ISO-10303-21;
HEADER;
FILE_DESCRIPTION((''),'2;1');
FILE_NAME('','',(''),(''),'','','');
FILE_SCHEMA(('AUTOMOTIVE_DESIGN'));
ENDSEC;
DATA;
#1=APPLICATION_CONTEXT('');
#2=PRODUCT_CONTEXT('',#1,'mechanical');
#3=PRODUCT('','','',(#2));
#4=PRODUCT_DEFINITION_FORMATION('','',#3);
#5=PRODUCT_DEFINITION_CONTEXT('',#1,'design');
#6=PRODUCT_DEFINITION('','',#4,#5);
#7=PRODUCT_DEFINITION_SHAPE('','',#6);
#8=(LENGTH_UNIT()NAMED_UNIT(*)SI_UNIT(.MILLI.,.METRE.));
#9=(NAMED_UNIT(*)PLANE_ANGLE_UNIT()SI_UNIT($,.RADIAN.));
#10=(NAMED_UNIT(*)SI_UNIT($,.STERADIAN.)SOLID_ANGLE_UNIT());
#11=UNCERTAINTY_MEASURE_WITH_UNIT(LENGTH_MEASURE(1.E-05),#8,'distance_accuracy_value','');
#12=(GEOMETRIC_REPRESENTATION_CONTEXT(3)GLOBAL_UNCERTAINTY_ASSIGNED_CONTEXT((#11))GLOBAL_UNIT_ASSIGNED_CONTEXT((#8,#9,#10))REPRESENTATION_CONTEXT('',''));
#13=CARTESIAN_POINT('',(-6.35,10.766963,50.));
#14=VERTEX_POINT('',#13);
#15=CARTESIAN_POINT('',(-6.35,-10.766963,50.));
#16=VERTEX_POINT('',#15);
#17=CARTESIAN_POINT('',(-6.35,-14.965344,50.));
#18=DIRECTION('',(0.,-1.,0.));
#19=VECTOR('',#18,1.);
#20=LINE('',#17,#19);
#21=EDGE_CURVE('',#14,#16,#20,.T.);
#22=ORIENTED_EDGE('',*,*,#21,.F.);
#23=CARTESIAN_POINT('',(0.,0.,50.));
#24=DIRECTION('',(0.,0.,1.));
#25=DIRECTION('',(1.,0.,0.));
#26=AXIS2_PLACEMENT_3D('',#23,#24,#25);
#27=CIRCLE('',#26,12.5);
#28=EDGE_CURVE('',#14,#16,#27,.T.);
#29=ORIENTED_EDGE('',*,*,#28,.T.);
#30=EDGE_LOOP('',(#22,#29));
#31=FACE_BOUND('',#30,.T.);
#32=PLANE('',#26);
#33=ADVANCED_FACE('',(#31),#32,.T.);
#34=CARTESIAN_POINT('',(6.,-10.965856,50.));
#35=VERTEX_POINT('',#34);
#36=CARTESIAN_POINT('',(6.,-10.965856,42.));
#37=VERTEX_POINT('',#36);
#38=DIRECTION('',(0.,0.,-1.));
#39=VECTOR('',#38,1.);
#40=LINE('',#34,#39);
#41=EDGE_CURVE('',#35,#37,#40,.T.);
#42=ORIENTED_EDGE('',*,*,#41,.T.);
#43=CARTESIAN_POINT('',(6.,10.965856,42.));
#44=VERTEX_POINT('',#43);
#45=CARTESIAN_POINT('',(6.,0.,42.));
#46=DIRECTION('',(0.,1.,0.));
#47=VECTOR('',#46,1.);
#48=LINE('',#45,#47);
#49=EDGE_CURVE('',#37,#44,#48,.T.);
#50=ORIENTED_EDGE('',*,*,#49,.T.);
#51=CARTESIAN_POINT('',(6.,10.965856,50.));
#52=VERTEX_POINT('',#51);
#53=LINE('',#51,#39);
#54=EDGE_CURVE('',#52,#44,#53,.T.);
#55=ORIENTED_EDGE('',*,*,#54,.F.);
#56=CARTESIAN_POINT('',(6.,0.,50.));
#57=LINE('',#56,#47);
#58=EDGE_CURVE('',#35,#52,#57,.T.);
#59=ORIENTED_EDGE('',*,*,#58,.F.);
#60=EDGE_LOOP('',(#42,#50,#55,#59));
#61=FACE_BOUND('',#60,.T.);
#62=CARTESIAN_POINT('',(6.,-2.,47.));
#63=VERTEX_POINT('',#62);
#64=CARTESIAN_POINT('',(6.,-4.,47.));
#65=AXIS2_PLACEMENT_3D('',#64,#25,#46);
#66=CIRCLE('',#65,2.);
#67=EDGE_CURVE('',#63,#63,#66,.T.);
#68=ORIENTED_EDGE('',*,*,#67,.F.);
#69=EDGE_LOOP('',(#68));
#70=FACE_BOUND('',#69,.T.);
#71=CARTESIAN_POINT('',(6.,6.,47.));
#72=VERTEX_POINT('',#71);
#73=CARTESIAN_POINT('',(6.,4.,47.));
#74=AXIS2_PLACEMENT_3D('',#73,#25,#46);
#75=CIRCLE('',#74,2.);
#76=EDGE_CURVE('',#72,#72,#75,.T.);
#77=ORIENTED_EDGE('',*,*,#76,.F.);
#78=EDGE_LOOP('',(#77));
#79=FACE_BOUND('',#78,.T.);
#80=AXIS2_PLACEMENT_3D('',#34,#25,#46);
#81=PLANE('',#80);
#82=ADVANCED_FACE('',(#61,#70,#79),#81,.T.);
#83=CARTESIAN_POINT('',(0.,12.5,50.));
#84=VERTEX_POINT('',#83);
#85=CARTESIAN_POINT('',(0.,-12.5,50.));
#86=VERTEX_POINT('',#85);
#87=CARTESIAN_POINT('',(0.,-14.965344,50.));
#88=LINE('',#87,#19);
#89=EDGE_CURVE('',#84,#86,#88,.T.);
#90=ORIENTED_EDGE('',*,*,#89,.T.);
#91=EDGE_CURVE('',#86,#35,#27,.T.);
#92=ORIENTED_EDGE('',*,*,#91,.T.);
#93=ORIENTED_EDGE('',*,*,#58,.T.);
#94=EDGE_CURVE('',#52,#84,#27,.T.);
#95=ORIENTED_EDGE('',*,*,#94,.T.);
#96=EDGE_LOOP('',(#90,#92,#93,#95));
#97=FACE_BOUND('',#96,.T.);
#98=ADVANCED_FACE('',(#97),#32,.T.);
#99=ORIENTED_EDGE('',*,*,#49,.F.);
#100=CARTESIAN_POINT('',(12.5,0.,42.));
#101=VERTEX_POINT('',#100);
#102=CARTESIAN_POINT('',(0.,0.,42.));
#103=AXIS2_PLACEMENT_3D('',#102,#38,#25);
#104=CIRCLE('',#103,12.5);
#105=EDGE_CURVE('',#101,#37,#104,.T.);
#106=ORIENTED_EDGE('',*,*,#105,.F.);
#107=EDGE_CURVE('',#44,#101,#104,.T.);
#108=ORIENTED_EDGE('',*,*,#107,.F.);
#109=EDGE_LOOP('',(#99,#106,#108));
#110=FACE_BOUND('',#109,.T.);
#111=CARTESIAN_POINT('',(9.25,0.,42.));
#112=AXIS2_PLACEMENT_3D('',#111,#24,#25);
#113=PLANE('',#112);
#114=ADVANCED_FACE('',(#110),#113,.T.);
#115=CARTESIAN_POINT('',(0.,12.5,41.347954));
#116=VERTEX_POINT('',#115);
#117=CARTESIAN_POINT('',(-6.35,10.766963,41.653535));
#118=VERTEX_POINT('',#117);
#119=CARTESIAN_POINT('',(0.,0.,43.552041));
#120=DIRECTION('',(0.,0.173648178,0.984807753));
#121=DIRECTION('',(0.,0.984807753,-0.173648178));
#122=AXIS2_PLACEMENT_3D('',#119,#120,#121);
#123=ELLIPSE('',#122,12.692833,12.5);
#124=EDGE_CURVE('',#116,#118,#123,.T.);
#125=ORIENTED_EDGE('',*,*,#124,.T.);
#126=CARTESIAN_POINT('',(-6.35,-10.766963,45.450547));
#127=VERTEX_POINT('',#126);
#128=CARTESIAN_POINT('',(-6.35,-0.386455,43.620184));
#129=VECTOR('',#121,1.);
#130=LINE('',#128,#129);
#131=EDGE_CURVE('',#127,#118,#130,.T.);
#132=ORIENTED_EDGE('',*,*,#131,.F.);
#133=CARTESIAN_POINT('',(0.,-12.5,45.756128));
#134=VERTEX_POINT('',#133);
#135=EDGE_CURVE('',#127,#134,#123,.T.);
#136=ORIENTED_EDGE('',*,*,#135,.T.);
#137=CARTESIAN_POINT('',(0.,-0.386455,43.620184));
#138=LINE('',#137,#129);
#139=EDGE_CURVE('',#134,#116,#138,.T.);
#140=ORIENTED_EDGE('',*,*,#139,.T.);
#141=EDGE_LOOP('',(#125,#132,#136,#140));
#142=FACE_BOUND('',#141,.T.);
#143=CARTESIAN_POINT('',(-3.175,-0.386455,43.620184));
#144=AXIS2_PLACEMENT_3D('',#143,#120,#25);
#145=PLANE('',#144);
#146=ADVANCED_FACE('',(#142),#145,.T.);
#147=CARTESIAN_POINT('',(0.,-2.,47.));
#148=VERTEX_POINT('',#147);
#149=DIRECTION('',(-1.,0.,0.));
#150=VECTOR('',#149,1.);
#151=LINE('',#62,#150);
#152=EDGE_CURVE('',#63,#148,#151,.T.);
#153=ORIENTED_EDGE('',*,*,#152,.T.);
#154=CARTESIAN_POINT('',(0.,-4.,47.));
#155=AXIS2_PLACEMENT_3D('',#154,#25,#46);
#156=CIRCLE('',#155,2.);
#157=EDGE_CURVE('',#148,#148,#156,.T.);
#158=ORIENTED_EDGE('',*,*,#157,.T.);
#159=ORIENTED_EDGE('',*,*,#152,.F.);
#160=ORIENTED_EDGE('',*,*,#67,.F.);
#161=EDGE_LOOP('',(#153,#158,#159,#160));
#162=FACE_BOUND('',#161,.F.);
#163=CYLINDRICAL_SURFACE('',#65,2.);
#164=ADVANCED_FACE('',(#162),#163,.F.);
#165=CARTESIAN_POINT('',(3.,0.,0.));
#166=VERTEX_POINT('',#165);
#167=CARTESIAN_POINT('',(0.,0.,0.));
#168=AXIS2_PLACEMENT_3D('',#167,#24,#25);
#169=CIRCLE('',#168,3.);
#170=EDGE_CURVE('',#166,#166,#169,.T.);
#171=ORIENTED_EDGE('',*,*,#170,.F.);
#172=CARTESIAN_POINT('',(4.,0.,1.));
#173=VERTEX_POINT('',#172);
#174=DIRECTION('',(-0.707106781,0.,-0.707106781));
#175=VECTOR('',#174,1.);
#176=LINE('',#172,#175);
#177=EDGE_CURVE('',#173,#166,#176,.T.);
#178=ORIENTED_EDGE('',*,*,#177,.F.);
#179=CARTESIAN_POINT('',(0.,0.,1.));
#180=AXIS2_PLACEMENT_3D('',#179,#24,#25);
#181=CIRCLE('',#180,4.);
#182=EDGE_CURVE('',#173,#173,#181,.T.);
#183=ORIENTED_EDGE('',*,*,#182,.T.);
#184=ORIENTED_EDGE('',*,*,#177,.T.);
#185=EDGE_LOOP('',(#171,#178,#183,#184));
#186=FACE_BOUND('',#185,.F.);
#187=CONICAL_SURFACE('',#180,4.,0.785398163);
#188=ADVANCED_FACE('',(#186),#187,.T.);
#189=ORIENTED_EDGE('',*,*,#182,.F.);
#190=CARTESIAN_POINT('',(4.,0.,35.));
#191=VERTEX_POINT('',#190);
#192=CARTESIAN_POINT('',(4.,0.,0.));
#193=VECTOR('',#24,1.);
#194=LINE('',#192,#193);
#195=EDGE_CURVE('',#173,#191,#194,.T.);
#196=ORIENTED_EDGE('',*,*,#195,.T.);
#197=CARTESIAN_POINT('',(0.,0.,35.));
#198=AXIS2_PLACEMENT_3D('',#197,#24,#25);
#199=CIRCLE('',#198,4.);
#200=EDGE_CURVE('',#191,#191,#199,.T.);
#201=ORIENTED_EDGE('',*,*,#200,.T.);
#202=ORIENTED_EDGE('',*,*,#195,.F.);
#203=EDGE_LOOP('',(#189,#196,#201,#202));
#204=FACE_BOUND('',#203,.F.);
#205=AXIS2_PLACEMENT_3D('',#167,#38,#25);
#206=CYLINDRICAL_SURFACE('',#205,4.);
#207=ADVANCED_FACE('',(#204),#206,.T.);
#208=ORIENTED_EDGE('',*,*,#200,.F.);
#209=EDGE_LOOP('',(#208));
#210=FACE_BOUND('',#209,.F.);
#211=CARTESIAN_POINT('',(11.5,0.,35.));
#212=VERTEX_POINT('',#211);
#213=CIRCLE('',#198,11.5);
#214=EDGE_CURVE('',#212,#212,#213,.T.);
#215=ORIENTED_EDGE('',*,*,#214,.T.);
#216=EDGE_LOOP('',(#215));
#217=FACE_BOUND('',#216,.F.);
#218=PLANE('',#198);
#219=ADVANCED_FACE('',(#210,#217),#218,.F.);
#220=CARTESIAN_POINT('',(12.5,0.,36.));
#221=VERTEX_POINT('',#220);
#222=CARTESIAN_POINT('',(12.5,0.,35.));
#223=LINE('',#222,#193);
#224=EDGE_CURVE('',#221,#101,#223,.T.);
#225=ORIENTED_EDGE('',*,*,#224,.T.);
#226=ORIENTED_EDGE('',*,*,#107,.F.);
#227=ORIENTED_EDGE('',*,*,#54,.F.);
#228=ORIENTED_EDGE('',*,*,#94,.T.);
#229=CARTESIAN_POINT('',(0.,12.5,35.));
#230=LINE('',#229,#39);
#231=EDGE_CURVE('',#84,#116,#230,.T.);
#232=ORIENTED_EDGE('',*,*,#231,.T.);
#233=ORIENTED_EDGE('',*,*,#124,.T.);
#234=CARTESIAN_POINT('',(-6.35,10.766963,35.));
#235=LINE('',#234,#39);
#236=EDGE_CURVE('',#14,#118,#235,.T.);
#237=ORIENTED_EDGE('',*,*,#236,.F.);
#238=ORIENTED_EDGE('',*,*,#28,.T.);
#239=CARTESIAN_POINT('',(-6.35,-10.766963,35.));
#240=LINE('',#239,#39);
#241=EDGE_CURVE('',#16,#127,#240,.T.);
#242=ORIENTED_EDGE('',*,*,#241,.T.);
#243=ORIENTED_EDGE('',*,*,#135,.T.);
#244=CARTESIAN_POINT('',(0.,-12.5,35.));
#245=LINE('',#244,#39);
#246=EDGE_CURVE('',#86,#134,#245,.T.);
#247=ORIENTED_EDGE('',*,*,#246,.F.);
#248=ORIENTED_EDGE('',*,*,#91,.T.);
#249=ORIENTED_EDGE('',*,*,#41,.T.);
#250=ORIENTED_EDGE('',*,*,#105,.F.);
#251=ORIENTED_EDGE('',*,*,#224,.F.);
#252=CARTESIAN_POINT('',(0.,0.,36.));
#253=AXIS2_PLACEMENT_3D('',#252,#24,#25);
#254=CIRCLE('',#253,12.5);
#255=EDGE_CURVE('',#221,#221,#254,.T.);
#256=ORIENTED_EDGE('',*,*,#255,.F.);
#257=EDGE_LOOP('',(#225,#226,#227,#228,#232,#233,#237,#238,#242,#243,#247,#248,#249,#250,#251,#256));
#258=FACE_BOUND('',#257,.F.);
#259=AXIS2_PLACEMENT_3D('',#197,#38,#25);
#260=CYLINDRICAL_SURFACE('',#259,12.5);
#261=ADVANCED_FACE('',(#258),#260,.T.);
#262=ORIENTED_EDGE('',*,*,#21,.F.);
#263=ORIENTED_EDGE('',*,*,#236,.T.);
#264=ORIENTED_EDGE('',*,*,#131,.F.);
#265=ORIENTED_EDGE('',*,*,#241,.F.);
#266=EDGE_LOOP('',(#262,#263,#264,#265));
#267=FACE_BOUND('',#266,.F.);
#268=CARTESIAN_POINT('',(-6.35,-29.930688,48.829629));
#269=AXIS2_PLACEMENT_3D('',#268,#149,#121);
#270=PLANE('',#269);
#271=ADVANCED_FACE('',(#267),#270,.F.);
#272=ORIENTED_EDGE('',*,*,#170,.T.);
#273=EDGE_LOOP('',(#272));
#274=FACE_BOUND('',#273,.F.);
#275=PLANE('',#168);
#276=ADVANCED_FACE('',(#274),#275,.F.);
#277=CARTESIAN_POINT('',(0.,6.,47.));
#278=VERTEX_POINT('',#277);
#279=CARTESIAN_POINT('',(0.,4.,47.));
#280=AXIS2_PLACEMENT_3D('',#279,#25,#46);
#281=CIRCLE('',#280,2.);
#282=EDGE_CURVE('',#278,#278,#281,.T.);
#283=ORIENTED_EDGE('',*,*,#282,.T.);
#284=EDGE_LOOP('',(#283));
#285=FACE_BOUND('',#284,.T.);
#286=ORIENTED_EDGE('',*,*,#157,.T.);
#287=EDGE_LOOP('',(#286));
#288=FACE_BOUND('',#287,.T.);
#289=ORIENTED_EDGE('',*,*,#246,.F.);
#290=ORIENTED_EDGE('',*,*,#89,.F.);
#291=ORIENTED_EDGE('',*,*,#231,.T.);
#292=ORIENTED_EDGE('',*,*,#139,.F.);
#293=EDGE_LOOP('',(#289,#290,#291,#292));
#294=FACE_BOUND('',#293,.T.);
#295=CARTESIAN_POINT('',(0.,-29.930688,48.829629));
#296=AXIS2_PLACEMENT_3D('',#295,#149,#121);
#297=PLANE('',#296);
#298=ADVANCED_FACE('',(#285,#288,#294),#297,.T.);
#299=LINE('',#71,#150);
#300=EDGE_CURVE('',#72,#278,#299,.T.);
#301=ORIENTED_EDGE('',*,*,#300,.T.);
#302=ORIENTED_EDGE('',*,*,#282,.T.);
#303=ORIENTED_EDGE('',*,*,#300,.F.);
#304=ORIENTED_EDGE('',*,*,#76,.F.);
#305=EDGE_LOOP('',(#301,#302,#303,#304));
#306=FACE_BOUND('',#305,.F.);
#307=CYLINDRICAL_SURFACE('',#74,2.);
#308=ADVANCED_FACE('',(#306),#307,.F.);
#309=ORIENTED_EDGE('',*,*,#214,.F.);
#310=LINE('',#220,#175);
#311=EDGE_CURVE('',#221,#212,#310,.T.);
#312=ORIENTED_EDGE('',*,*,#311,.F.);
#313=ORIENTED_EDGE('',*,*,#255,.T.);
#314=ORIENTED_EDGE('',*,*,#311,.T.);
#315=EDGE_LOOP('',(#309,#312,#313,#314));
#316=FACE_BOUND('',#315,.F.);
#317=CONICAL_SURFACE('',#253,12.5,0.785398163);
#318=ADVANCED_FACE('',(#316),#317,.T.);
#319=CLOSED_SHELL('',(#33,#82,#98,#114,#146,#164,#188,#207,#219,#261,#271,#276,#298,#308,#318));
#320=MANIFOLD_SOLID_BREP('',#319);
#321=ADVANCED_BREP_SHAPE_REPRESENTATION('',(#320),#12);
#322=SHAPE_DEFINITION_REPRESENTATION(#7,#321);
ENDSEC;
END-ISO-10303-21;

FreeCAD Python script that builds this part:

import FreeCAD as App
import Part
import Sketcher

V = App.Vector


def edges_at(feature, points):
    """Names of the edges that pass closest to the given points."""
    edges = feature.Shape.Edges
    near = lambda p: min(range(len(edges)), key=lambda i: edges[i].distToShape(Part.Vertex(*p))[0])
    return sorted({f"Edge{near(p) + 1}" for p in points})


def add_polygon(sketch, points):
    """Adds a closed chain of lines whose ends are joined by coincident constraints."""
    first, n = sketch.GeometryCount, len(points)
    for a, b in zip(points, points[1:] + points[:1]):
        sketch.addGeometry(Part.LineSegment(App.Vector(*a, 0), App.Vector(*b, 0)), False)
    for i in range(n):
        sketch.addConstraint(Sketcher.Constraint("Coincident", first + i, 2, first + (i + 1) % n, 1))

doc = App.newDocument("Part")
body = doc.addObject("PartDesign::Body", "Body")

# Sketch on XY plane
sketch1 = body.newObject("Sketcher::SketchObject", "Sketch")
sketch1.AttachmentSupport = (doc.getObject("XY_Plane"), [""])
sketch1.MapMode = "FlatFace"
sketch1.addGeometry(Part.Circle(V(0, 0, 0), V(0, 0, 1), 4), False)
sketch1.addConstraint([
    Sketcher.Constraint("Coincident", 0, 3, -1, 1),
    Sketcher.Constraint("Diameter", 0, 8.0),
])
pad1 = body.newObject("PartDesign::Pad", "Pad")
pad1.Profile = sketch1
pad1.Length = 35

# Sketch on XY plane
sketch2 = body.newObject("Sketcher::SketchObject", "Sketch001")
sketch2.AttachmentSupport = (doc.getObject("XY_Plane"), [""])
sketch2.MapMode = "FlatFace"
sketch2.AttachmentOffset = App.Placement(V(0, 0, 35), App.Rotation())
sketch2.addGeometry(Part.Circle(V(0, 0, 0), V(0, 0, 1), 12), False)
sketch2.addConstraint([
    Sketcher.Constraint("Coincident", 0, 3, -1, 1),
    Sketcher.Constraint("Diameter", 0, 25.0),
])
pad2 = body.newObject("PartDesign::Pad", "Pad001")
pad2.Profile = sketch2
pad2.Length = 15

# Sketch on XY plane
sketch3 = body.newObject("Sketcher::SketchObject", "Sketch002")
sketch3.AttachmentSupport = (doc.getObject("XY_Plane"), [""])
sketch3.MapMode = "FlatFace"
sketch3.AttachmentOffset = App.Placement(V(0, 0, 50), App.Rotation())
add_polygon(sketch3, [(6, 11), (6, -11), (12, -11), (12, 11)])  # lines 0-3
sketch3.addConstraint([
    Sketcher.Constraint("Vertical", 0),
    Sketcher.Constraint("Horizontal", 1),
    Sketcher.Constraint("Vertical", 2),
    Sketcher.Constraint("Horizontal", 3),
    Sketcher.Constraint("DistanceX", 1, 1, 1, 2, 6.5),
    Sketcher.Constraint("DistanceX", -1, 1, 0, 2, 6.0),
    Sketcher.Constraint("DistanceY", 0, 2, 0, 1, 21.931712),
    Sketcher.Constraint("DistanceY", 0, 2, -1, 1, 10.965856),
])
pocket1 = body.newObject("PartDesign::Pocket", "Pocket")
pocket1.Profile = sketch3
pocket1.Length = 8

# Sketch on an angled plane
sketch4 = body.newObject("Sketcher::SketchObject", "Sketch003")
sketch4.Placement = App.Placement(V(0, 7.447838, 42.238786), App.Rotation(V(1, 0, 0), V(0, 0.984807753, -0.173648178), V(0, 0.173648178, 0.984807753), "ZXY"))
add_polygon(sketch4, [(-6, 22), (-6, -38), (0, -38), (0, 22)])  # lines 0-3
sketch4.addConstraint([
    Sketcher.Constraint("Vertical", 0),
    Sketcher.Constraint("Horizontal", 1),
    Sketcher.Constraint("Vertical", 2),
    Sketcher.Constraint("Horizontal", 3),
    Sketcher.Constraint("PointOnObject", 1, 2, -2),
    Sketcher.Constraint("DistanceY", 0, 2, 0, 1, 60.0),
    Sketcher.Constraint("DistanceX", 1, 1, 1, 2, 6.35),
    Sketcher.Constraint("DistanceY", 0, 2, -1, 1, 37.95515),
])
pocket2 = body.newObject("PartDesign::Pocket", "Pocket001")
pocket2.Profile = sketch4
pocket2.Length = 25
pocket2.Reversed = True

# Sketch on YZ plane
sketch5 = body.newObject("Sketcher::SketchObject", "Sketch004")
sketch5.AttachmentSupport = (doc.getObject("YZ_Plane"), [""])
sketch5.MapMode = "FlatFace"
sketch5.AttachmentOffset = App.Placement(V(0, 0, 6), App.Rotation())
sketch5.addGeometry([
    Part.Circle(V(4, 47, 0), V(0, 0, 1), 2),
    Part.Circle(V(-4, 47, 0), V(0, 0, 1), 2),
], False)
sketch5.addConstraint([
    Sketcher.Constraint("Equal", 0, 1),
    Sketcher.Constraint("Symmetric", 0, 3, 1, 3, -2),
    Sketcher.Constraint("Diameter", 0, 4.0),
    Sketcher.Constraint("DistanceX", -1, 1, 0, 3, 4.0),
    Sketcher.Constraint("DistanceY", -1, 1, 0, 3, 47.0),
])
pocket3 = body.newObject("PartDesign::Pocket", "Pocket002")
pocket3.Profile = sketch5
pocket3.Length = 8
doc.recompute()

chamfer = body.newObject("PartDesign::Chamfer", "Chamfer")
chamfer.Base = (pocket3, edges_at(pocket3, [(-12.5, 0, 35), (-4, 0, 0)]))
chamfer.Size = 1

doc.recompute()
